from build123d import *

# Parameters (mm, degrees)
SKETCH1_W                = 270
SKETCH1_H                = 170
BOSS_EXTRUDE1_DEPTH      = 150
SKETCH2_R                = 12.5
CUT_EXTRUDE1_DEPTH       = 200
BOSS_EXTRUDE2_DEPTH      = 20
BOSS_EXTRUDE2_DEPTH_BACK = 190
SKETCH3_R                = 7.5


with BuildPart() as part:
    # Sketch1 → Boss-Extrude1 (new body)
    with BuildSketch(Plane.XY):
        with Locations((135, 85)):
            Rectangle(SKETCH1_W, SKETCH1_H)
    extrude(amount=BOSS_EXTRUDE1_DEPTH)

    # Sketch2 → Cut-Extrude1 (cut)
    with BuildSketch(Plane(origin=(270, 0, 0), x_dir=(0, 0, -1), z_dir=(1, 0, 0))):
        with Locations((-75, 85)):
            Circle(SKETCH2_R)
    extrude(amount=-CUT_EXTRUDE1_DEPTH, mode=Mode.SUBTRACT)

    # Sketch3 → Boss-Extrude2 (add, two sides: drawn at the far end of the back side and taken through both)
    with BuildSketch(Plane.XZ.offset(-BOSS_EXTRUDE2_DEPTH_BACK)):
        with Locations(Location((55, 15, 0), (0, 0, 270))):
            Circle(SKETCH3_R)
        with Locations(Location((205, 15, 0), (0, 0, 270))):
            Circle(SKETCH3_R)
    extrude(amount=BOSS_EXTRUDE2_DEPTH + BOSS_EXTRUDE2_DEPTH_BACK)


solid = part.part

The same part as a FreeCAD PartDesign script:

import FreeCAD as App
import Part
import Sketcher
Q = App.Units.Quantity


def add_polygon(sketch, points):
    """Adds a closed chain of lines whose ends are joined by coincident constraints."""
    first, n = sketch.GeometryCount, len(points)
    for a, b in zip(points, points[1:] + points[:1]):
        sketch.addGeometry(Part.LineSegment(App.Vector(*a, 0), App.Vector(*b, 0)), False)
    for i in range(n):
        sketch.addConstraint(Sketcher.Constraint("Coincident", first + i, 2, first + (i + 1) % n, 1))

doc = App.newDocument("Part")
body = doc.addObject("PartDesign::Body", "Body")

sketch1 = body.newObject("Sketcher::SketchObject", "Sketch")
sketch1.AttachmentSupport = (doc.getObject("XY_Plane"), [""])
sketch1.MapMode = "FlatFace"
add_polygon(sketch1, [(0, 170), (0, 0), (270, 0), (270, 170)])
sketch1.addConstraint(Sketcher.Constraint("Vertical", 0))
sketch1.addConstraint(Sketcher.Constraint("Horizontal", 1))
sketch1.addConstraint(Sketcher.Constraint("Vertical", 2))
sketch1.addConstraint(Sketcher.Constraint("Horizontal", 3))
sketch1.addConstraint(Sketcher.Constraint("Coincident", 0, 2, -1, 1))
sketch1.addConstraint(Sketcher.Constraint("DistanceX", 1, 1, 1, 2, Q("270 mm")))
sketch1.addConstraint(Sketcher.Constraint("DistanceY", 0, 2, 0, 1, Q("170 mm")))
pad1 = body.newObject("PartDesign::Pad", "Pad")
pad1.Profile = sketch1
pad1.Length = 150

sketch2 = body.newObject("Sketcher::SketchObject", "Sketch001")
sketch2.AttachmentSupport = (doc.getObject("YZ_Plane"), [""])
sketch2.MapMode = "FlatFace"
sketch2.AttachmentOffset = App.Placement(App.Vector(0, 0, 270), App.Rotation())
sketch2.addGeometry(Part.Circle(App.Vector(85, 75, 0), App.Vector(0, 0, 1), 12.5), False)
sketch2.addConstraint(Sketcher.Constraint("Diameter", 0, Q("25 mm")))
sketch2.addConstraint(Sketcher.Constraint("DistanceX", -1, 1, 0, 3, Q("85 mm")))
sketch2.addConstraint(Sketcher.Constraint("DistanceY", -1, 1, 0, 3, Q("75 mm")))
pocket1 = body.newObject("PartDesign::Pocket", "Pocket")
pocket1.Profile = sketch2
pocket1.Length = 200

sketch3 = body.newObject("Sketcher::SketchObject", "Sketch002")
sketch3.AttachmentSupport = (doc.getObject("XZ_Plane"), [""])
sketch3.MapMode = "FlatFace"
sketch3.addGeometry(Part.Circle(App.Vector(55, 15, 0), App.Vector(0, 0, 1), 7.5), False)
sketch3.addGeometry(Part.Circle(App.Vector(205, 15, 0), App.Vector(0, 0, 1), 7.5), False)
sketch3.addConstraint(Sketcher.Constraint("Equal", 0, 1))
sketch3.addConstraint(Sketcher.Constraint("Horizontal", 0, 3, 1, 3))
sketch3.addConstraint(Sketcher.Constraint("Diameter", 0, Q("15 mm")))
sketch3.addConstraint(Sketcher.Constraint("DistanceX", -1, 1, 0, 3, Q("55 mm")))
sketch3.addConstraint(Sketcher.Constraint("DistanceY", -1, 1, 0, 3, Q("15 mm")))
sketch3.addConstraint(Sketcher.Constraint("DistanceX", -1, 1, 1, 3, Q("205 mm")))
pad2 = body.newObject("PartDesign::Pad", "Pad001")
pad2.Profile = sketch3
pad2.Type = "TwoLengths"
pad2.Length = 20
pad2.Length2 = 190

doc.recompute()
